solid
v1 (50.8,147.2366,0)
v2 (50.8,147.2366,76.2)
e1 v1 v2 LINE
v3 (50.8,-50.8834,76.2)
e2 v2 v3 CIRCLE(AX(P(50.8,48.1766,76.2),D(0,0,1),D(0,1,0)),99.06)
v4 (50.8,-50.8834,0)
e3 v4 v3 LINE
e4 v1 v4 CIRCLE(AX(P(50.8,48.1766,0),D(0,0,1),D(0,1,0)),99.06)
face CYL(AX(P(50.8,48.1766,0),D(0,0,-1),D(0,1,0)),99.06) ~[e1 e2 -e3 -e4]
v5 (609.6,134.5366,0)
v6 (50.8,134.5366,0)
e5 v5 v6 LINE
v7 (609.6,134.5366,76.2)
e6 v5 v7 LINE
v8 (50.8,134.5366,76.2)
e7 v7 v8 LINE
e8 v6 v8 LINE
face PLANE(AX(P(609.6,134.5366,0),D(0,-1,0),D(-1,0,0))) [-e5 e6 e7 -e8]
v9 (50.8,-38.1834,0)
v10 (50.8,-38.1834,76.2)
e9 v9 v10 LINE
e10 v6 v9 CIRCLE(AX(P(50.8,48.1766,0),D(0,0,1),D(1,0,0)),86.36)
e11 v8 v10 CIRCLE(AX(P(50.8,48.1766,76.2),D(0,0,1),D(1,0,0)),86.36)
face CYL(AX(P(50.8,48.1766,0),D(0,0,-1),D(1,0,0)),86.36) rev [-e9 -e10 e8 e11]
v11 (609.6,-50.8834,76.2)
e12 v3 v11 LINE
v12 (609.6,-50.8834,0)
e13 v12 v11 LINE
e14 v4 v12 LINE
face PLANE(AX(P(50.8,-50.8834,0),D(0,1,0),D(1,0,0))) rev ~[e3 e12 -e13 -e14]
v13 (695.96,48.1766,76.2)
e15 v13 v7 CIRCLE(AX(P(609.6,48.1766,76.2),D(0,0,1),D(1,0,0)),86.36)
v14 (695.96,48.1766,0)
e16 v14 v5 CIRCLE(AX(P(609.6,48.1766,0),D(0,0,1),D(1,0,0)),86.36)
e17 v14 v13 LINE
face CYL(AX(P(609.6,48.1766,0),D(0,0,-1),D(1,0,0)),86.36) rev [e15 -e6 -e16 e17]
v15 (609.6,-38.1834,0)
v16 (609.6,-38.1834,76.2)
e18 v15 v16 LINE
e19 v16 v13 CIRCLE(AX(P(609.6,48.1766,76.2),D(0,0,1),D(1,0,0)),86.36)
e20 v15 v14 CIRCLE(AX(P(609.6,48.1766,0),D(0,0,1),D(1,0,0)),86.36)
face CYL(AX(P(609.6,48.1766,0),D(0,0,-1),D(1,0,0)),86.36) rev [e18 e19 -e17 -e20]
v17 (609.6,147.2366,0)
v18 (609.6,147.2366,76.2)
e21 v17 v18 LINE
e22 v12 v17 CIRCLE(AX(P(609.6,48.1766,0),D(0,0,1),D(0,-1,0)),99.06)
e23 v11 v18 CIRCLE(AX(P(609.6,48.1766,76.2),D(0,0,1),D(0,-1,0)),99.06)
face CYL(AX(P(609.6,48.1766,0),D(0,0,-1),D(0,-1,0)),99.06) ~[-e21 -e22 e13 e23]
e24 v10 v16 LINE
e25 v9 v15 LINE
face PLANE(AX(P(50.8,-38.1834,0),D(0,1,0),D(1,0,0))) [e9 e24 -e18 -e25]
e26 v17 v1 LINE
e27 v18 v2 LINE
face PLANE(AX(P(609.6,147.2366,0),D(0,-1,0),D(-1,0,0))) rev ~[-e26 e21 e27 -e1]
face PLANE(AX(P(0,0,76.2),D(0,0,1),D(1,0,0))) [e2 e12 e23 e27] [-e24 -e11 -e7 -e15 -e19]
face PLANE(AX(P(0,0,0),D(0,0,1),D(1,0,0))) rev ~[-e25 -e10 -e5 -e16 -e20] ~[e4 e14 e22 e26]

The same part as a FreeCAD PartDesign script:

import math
import FreeCAD as App
import Part
import Sketcher
from FreeCAD import Vector
Q = App.Units.Quantity

doc = App.newDocument("Part")
body = doc.addObject("PartDesign::Body", "Body")

# Sketch on XY plane
sketch1 = doc.addObject("Sketcher::SketchObject", "Sketch")
body.addObject(sketch1)
sketch1.AttachmentSupport = (doc.XY_Plane, [""])
sketch1.MapMode = "FlatFace"
sketch1.addGeometry([
    Part.ArcOfCircle(Part.Circle(Vector(609.6, 48.1766, 0), Vector(0, 0, 1), 99.06), math.radians(-90), math.radians(90)),  # 0
    Part.LineSegment(Vector(609.6, 147.2366, 0), Vector(50.8, 147.2366, 0)),  # 1
    Part.ArcOfCircle(Part.Circle(Vector(50.8, 48.1766, 0), Vector(0, 0, 1), 99.06), math.radians(90), math.radians(270)),  # 2
    Part.LineSegment(Vector(50.8, -50.8834, 0), Vector(609.6, -50.8834, 0)),  # 3
    Part.LineSegment(Vector(50.8, 134.5366, 0), Vector(609.6, 134.5366, 0)),  # 4
    Part.ArcOfCircle(Part.Circle(Vector(609.6, 48.1766, 0), Vector(0, 0, 1), 86.36), math.radians(-90), math.radians(90)),  # 5
    Part.LineSegment(Vector(609.6, -38.1834, 0), Vector(50.8, -38.1834, 0)),  # 6
    Part.ArcOfCircle(Part.Circle(Vector(50.8, 48.1766, 0), Vector(0, 0, 1), 86.36), math.radians(90), math.radians(270)),  # 7
], False)
sketch1.addConstraint([
    Sketcher.Constraint("Tangent", 0, 2, 1, 1),
    Sketcher.Constraint("Tangent", 1, 2, 2, 1),
    Sketcher.Constraint("Tangent", 2, 2, 3, 1),
    Sketcher.Constraint("Tangent", 3, 2, 0, 1),
    Sketcher.Constraint("Tangent", 4, 2, 5, 2),
    Sketcher.Constraint("Tangent", 5, 1, 6, 1),
    Sketcher.Constraint("Tangent", 6, 2, 7, 2),
    Sketcher.Constraint("Tangent", 7, 1, 4, 1),
    Sketcher.Constraint("Horizontal", 1),
    Sketcher.Constraint("Horizontal", 3),
    Sketcher.Constraint("Horizontal", 4),
    Sketcher.Constraint("Horizontal", 6),
    Sketcher.Constraint("Coincident", 5, 3, 0, 3),
    Sketcher.Constraint("Vertical", 7, 3, 1, 2),
    Sketcher.Constraint("Radius", 0, Q("3.9 in")),
    Sketcher.Constraint("Radius", 5, Q("3.4 in")),
    Sketcher.Constraint("DistanceX", 1, 2, 1, 1, Q("22 in")),
    Sketcher.Constraint("DistanceX", -1, 1, 0, 3, Q("24 in")),
    Sketcher.Constraint("DistanceY", -1, 1, 0, 3, Q("48.1766 mm")),
])
pad1 = doc.addObject("PartDesign::Pad", "Pad")
body.addObject(pad1)
pad1.Profile = sketch1
pad1.Length = Q("3 in")

doc.recompute()
